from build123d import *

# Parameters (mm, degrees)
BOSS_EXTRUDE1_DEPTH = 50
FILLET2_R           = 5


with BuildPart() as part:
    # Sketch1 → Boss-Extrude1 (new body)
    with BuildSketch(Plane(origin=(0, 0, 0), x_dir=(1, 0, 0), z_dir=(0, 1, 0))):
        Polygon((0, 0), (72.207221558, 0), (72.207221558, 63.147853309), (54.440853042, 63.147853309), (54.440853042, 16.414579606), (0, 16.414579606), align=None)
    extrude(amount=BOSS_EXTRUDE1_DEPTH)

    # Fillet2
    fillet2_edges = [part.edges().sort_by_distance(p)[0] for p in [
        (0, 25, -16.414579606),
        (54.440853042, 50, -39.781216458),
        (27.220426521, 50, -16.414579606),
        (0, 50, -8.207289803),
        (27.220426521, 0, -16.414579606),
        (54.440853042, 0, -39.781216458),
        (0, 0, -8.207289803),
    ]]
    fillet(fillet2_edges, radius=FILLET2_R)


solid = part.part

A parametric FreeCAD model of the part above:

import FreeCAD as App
import Part
import Sketcher
from FreeCAD import Vector


def edges_at(feature, points):
    """Names of the edges that pass closest to the given points."""
    edges = feature.Shape.Edges
    near = lambda p: min(range(len(edges)), key=lambda i: edges[i].distToShape(Part.Vertex(*p))[0])
    return sorted({f"Edge{near(p) + 1}" for p in points})


def add_polygon(sketch, points):
    """Adds a closed chain of lines whose ends are joined by coincident constraints."""
    first, n = sketch.GeometryCount, len(points)
    for a, b in zip(points, points[1:] + points[:1]):
        sketch.addGeometry(Part.LineSegment(App.Vector(*a, 0), App.Vector(*b, 0)), False)
    for i in range(n):
        sketch.addConstraint(Sketcher.Constraint("Coincident", first + i, 2, first + (i + 1) % n, 1))

doc = App.newDocument("Part")
body = doc.addObject("PartDesign::Body", "Body")

sketch1 = body.newObject("Sketcher::SketchObject", "Sketch")
sketch1.AttachmentSupport = (doc.getObject("XZ_Plane"), [""])
sketch1.MapMode = "FlatFace"
add_polygon(sketch1, [(0, 0), (72, 0), (72, -63), (54, -63), (54, -16), (0, -16)])
sketch1.addConstraint(Sketcher.Constraint("Horizontal", 0))
sketch1.addConstraint(Sketcher.Constraint("Vertical", 1))
sketch1.addConstraint(Sketcher.Constraint("Horizontal", 2))
sketch1.addConstraint(Sketcher.Constraint("Vertical", 3))
sketch1.addConstraint(Sketcher.Constraint("Horizontal", 4))
sketch1.addConstraint(Sketcher.Constraint("Vertical", 5))
sketch1.addConstraint(Sketcher.Constraint("Coincident", 5, 2, -1, 1))
sketch1.addConstraint(Sketcher.Constraint("DistanceX", 0, 1, 0, 2, 72.207222))
sketch1.addConstraint(Sketcher.Constraint("DistanceX", 2, 2, 2, 1, 17.766369))
sketch1.addConstraint(Sketcher.Constraint("DistanceY", 5, 1, 5, 2, 16.41458))
sketch1.addConstraint(Sketcher.Constraint("DistanceY", 1, 2, 1, 1, 63.147853))
pad1 = body.newObject("PartDesign::Pad", "Pad")
pad1.Profile = sketch1
pad1.Length = 50
pad1.Reversed = True
doc.recompute()

fillet = body.newObject("PartDesign::Fillet", "Fillet")
fillet.Base = (pad1, edges_at(pad1, [
    (0, 25, -16.415),
    (54.441, 50, -39.781),
    (27.22, 50, -16.415),
    (0, 50, -8.207),
    (27.22, 0, -16.415),
    (54.441, 0, -39.781),
    (0, 0, -8.207),
]))
fillet.Radius = 5

doc.recompute()
